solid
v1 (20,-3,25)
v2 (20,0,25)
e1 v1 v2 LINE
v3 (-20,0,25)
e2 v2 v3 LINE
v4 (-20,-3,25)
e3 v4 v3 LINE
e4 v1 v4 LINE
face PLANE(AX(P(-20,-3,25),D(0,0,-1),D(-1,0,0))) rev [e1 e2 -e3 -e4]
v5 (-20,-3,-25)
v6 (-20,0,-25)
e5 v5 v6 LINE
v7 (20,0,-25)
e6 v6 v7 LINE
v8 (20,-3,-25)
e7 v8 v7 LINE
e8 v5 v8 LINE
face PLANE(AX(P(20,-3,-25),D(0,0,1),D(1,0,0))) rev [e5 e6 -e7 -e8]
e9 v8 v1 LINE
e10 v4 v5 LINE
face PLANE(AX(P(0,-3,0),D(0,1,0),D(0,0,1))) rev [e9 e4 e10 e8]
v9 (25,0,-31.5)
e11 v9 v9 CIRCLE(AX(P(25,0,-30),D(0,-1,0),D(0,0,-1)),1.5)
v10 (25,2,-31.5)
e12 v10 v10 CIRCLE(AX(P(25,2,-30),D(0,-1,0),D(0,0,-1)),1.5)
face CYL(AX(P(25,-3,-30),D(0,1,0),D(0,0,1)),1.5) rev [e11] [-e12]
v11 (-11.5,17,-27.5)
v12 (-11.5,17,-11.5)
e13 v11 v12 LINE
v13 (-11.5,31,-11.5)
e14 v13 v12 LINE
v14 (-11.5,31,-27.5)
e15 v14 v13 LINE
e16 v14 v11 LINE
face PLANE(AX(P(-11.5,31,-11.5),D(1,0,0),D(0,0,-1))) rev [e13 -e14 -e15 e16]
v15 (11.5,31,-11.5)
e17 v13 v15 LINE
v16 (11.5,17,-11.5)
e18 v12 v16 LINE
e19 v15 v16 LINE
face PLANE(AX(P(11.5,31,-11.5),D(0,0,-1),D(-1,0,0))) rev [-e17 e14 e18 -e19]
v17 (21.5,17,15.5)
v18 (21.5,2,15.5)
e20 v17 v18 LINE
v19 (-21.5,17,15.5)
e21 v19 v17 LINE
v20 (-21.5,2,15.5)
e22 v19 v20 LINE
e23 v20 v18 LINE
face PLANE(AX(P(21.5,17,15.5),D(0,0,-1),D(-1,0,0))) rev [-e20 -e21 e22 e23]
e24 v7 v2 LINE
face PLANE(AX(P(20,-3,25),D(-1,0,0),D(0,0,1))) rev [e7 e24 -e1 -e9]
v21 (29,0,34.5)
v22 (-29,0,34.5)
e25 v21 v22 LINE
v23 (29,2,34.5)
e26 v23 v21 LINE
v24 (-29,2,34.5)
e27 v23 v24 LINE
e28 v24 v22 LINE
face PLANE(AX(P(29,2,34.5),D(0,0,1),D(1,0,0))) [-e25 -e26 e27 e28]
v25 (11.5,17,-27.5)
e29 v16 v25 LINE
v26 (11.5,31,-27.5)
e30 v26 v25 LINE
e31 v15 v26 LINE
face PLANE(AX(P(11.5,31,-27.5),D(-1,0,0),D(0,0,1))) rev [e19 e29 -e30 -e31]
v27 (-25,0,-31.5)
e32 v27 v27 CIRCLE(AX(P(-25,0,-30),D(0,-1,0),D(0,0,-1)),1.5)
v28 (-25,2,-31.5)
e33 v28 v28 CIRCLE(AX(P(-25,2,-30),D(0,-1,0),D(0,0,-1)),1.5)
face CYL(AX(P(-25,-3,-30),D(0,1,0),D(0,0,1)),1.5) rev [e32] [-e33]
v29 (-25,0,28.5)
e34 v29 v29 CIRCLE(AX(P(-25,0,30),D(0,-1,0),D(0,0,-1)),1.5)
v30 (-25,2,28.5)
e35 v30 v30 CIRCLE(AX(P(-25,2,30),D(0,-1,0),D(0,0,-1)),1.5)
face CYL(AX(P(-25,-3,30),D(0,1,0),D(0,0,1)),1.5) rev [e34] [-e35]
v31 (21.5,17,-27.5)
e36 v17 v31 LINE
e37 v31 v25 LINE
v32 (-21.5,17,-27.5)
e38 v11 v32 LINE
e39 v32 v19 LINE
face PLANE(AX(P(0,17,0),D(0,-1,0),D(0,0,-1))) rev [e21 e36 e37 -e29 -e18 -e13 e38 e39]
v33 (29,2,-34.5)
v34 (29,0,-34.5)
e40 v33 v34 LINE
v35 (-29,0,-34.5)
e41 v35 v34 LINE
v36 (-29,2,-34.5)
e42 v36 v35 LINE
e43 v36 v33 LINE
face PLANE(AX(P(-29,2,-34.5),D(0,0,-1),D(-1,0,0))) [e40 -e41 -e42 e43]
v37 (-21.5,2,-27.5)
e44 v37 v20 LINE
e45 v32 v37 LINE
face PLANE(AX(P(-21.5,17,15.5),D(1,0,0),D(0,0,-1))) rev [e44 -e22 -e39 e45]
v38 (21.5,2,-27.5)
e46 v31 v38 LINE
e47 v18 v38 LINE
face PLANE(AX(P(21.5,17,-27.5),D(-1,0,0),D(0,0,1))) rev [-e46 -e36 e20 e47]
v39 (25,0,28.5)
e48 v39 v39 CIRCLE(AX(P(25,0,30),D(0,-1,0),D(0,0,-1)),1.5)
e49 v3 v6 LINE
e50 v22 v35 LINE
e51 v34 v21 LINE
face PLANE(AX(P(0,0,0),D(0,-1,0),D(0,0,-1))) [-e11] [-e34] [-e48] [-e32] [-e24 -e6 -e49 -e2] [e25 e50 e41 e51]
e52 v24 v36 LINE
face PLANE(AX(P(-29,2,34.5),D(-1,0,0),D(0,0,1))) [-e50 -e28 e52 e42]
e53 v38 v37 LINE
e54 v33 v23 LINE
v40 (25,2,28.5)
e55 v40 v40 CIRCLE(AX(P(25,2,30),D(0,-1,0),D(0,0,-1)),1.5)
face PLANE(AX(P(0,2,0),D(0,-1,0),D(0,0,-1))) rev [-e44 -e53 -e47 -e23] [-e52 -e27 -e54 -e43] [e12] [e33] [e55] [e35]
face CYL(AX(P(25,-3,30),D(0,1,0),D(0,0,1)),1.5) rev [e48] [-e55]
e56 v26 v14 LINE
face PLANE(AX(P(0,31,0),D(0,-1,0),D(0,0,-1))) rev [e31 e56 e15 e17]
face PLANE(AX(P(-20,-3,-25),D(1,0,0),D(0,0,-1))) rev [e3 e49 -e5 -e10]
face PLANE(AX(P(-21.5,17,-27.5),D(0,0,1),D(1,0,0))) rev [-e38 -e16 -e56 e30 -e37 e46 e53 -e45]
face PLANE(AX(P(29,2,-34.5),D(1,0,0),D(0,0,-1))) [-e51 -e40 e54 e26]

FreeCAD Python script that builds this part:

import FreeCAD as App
import Part
import Sketcher

V = App.Vector


def add_polygon(sketch, points):
    """Adds a closed chain of lines whose ends are joined by coincident constraints."""
    first, n = sketch.GeometryCount, len(points)
    for a, b in zip(points, points[1:] + points[:1]):
        sketch.addGeometry(Part.LineSegment(App.Vector(*a, 0), App.Vector(*b, 0)), False)
    for i in range(n):
        sketch.addConstraint(Sketcher.Constraint("Coincident", first + i, 2, first + (i + 1) % n, 1))

doc = App.newDocument("Part")
body = doc.addObject("PartDesign::Body", "Body")

# Sketch on XZ plane
sketch1 = body.newObject("Sketcher::SketchObject", "Sketch")
sketch1.AttachmentSupport = (doc.getObject("XZ_Plane"), [""])
sketch1.MapMode = "FlatFace"
add_polygon(sketch1, [(-29, 34), (-29, -34), (29, -34), (29, 34)])  # lines 0-3
sketch1.addConstraint([
    Sketcher.Constraint("Vertical", 0),
    Sketcher.Constraint("Horizontal", 1),
    Sketcher.Constraint("Vertical", 2),
    Sketcher.Constraint("Horizontal", 3),
    Sketcher.Constraint("Symmetric", 0, 2, 2, 2, -1, 1),
    Sketcher.Constraint("DistanceX", 1, 1, 1, 2, 58.0),
    Sketcher.Constraint("DistanceY", 0, 2, 0, 1, 69.0),
])
pad1 = body.newObject("PartDesign::Pad", "Pad")
pad1.Profile = sketch1
pad1.Length = 2
pad1.Reversed = True

# Sketch on XZ plane
sketch2 = body.newObject("Sketcher::SketchObject", "Sketch001")
sketch2.AttachmentSupport = (doc.getObject("XZ_Plane"), [""])
sketch2.MapMode = "FlatFace"
sketch2.AttachmentOffset = App.Placement(V(0, 0, -2), App.Rotation())
add_polygon(sketch2, [(22, 16), (22, -28), (-22, -28), (-22, 16)])  # lines 0-3
sketch2.addConstraint([
    Sketcher.Constraint("Vertical", 0),
    Sketcher.Constraint("Horizontal", 1),
    Sketcher.Constraint("Vertical", 2),
    Sketcher.Constraint("Horizontal", 3),
    Sketcher.Constraint("Equal", 3, 0),
    Sketcher.Constraint("DistanceX", 1, 2, 1, 1, 43.0),
    Sketcher.Constraint("DistanceX", -1, 1, 0, 2, 21.5),
    Sketcher.Constraint("DistanceY", 0, 2, -1, 1, 27.5),
])
pad2 = body.newObject("PartDesign::Pad", "Pad001")
pad2.Profile = sketch2
pad2.Length = 15
pad2.Reversed = True

# Sketch on XZ plane
sketch3 = body.newObject("Sketcher::SketchObject", "Sketch002")
sketch3.AttachmentSupport = (doc.getObject("XZ_Plane"), [""])
sketch3.MapMode = "FlatFace"
sketch3.AttachmentOffset = App.Placement(V(0, 0, -17), App.Rotation())
add_polygon(sketch3, [(12, -12), (12, -28), (-12, -28), (-12, -12)])  # lines 0-3
sketch3.addConstraint([
    Sketcher.Constraint("Vertical", 0),
    Sketcher.Constraint("Horizontal", 1),
    Sketcher.Constraint("Vertical", 2),
    Sketcher.Constraint("Horizontal", 3),
    Sketcher.Constraint("DistanceX", 1, 2, 1, 1, 23.0),
    Sketcher.Constraint("DistanceY", 0, 2, 0, 1, 16.0),
    Sketcher.Constraint("DistanceX", -1, 1, 0, 2, 11.5),
    Sketcher.Constraint("DistanceY", 0, 2, -1, 1, 27.5),
])
pad3 = body.newObject("PartDesign::Pad", "Pad002")
pad3.Profile = sketch3
pad3.Length = 14
pad3.Reversed = True

# Sketch on XZ plane
sketch4 = body.newObject("Sketcher::SketchObject", "Sketch003")
sketch4.AttachmentSupport = (doc.getObject("XZ_Plane"), [""])
sketch4.MapMode = "FlatFace"
add_polygon(sketch4, [(-20, 25), (-20, -25), (20, -25), (20, 25)])  # lines 0-3
sketch4.addConstraint([
    Sketcher.Constraint("Vertical", 0),
    Sketcher.Constraint("Horizontal", 1),
    Sketcher.Constraint("Vertical", 2),
    Sketcher.Constraint("Horizontal", 3),
    Sketcher.Constraint("Symmetric", 0, 2, 2, 2, -1, 1),
    Sketcher.Constraint("DistanceX", 1, 1, 1, 2, 40.0),
    Sketcher.Constraint("DistanceY", 0, 2, 0, 1, 50.0),
])
pad4 = body.newObject("PartDesign::Pad", "Pad003")
pad4.Profile = sketch4
pad4.Length = 3

# Sketch on XZ plane
sketch5 = body.newObject("Sketcher::SketchObject", "Sketch004")
sketch5.AttachmentSupport = (doc.getObject("XZ_Plane"), [""])
sketch5.MapMode = "FlatFace"
sketch5.AttachmentOffset = App.Placement(V(0, 0, -2), App.Rotation())
sketch5.addGeometry([
    Part.Circle(V(-25, -30, 0), V(0, 0, 1), 1.5),
    Part.Circle(V(25, -30, 0), V(0, 0, 1), 1.5),
    Part.Circle(V(25, 30, 0), V(0, 0, 1), 1.5),
    Part.Circle(V(-25, 30, 0), V(0, 0, 1), 1.5),
], False)
sketch5.addConstraint([
    Sketcher.Constraint("Equal", 0, 1),
    Sketcher.Constraint("Equal", 1, 2),
    Sketcher.Constraint("Equal", 2, 3),
    Sketcher.Constraint("Symmetric", 0, 3, 2, 3, -1, 1),
    Sketcher.Constraint("Symmetric", 1, 3, 3, 3, -1, 1),
    Sketcher.Constraint("Symmetric", 0, 3, 1, 3, -2),
    Sketcher.Constraint("Diameter", 0, 3.0),
    Sketcher.Constraint("DistanceX", 0, 3, -1, 1, 25.0),
    Sketcher.Constraint("DistanceY", 0, 3, -1, 1, 30.0),
])
pocket1 = body.newObject("PartDesign::Pocket", "Pocket")
pocket1.Profile = sketch5
pocket1.Type = "ThroughAll"
pocket1.Midplane = True

doc.recompute()
